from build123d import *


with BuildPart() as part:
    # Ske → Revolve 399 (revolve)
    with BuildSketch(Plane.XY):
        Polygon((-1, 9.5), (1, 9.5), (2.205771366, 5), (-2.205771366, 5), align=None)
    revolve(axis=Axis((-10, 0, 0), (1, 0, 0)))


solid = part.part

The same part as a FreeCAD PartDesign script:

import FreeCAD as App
import Part
import Sketcher

V = App.Vector
Q = App.Units.Quantity

doc = App.newDocument("Part")
body = doc.addObject("PartDesign::Body", "Body")

sketch1 = doc.addObject("Sketcher::SketchObject", "Sketch")
body.addObject(sketch1)
sketch1.AttachmentSupport = (doc.XY_Plane, [""])
sketch1.MapMode = "FlatFace"
sketch1.addGeometry([
    Part.LineSegment(V(1, 9.5, 0), V(-1, 9.5, 0)),
    Part.LineSegment(V(-1, 9.5, 0), V(-2.2, 5, 0)),
    Part.LineSegment(V(-2.2, 5, 0), V(2.2, 5, 0)),
    Part.LineSegment(V(2.2, 5, 0), V(1, 9.5, 0)),
], False)
sketch1.addConstraint([
    Sketcher.Constraint("Coincident", 0, 2, 1, 1),
    Sketcher.Constraint("Coincident", 1, 2, 2, 1),
    Sketcher.Constraint("Coincident", 2, 2, 3, 1),
    Sketcher.Constraint("Coincident", 3, 2, 0, 1),
    Sketcher.Constraint("Horizontal", 0),
    Sketcher.Constraint("Horizontal", 2),
    Sketcher.Constraint("Equal", 1, 3),
    Sketcher.Constraint("DistanceX", 0, 2, 0, 1, 2.0),
    Sketcher.Constraint("Angle", 1, Q("-105 deg")),
    Sketcher.Constraint("DistanceX", 0, 2, -1, 1, 1.0),
    Sketcher.Constraint("DistanceY", -1, 1, 1, 2, 5.0),
    Sketcher.Constraint("DistanceY", -1, 1, 0, 2, 9.5),
])
revolution = doc.addObject("PartDesign::Revolution", "Revolution")
body.addObject(revolution)
revolution.Profile = sketch1
revolution.ReferenceAxis = (sketch1, ["H_Axis"])
revolution.Angle = 360

doc.recompute()
